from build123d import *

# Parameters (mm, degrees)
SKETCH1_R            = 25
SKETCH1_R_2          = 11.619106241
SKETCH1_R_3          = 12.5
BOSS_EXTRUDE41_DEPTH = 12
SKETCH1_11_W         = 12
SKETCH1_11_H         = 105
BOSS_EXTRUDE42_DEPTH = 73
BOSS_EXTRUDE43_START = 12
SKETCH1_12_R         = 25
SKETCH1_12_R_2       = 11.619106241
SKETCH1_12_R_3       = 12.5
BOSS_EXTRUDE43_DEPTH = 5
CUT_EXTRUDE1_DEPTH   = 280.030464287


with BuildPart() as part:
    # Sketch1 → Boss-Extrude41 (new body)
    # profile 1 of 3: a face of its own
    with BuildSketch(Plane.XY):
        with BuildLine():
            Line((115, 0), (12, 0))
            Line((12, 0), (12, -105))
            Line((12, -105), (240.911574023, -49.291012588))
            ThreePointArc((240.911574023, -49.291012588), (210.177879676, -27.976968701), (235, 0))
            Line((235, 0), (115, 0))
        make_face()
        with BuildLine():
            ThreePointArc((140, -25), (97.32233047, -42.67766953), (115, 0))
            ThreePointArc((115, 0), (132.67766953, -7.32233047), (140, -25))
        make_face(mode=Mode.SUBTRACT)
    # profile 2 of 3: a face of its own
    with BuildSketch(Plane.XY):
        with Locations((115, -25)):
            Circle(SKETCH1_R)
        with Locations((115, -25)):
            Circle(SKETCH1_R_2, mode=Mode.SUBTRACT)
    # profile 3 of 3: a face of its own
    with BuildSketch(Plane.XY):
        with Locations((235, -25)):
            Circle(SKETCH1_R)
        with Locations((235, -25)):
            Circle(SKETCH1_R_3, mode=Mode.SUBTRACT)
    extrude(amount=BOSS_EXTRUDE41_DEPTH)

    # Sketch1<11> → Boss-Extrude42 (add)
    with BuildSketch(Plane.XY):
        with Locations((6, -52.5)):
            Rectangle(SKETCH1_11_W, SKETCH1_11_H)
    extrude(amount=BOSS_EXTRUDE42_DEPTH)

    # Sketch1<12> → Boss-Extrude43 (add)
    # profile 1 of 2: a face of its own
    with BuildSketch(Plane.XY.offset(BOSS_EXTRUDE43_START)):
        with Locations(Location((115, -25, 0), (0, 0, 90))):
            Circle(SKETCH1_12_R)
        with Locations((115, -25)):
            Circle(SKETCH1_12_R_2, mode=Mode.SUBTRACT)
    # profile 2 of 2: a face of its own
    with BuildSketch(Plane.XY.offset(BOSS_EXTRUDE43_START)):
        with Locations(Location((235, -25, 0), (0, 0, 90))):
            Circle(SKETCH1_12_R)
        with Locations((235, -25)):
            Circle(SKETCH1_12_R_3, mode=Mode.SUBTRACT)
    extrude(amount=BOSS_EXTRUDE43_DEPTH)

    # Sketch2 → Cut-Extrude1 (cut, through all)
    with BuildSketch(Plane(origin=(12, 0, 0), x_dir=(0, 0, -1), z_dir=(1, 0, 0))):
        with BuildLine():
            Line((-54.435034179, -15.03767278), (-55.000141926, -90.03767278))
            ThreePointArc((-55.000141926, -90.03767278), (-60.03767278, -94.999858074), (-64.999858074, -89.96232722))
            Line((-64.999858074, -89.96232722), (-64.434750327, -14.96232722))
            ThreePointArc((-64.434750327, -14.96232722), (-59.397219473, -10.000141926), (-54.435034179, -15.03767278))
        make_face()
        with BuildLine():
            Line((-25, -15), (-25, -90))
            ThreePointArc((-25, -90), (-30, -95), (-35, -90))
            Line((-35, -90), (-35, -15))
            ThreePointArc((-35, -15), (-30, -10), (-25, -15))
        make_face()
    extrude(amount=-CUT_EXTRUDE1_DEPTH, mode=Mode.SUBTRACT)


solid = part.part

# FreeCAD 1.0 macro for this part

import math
import FreeCAD as App
import Part
import Sketcher
from FreeCAD import Vector
Q = App.Units.Quantity


def add_polygon(sketch, points):
    """Adds a closed chain of lines whose ends are joined by coincident constraints."""
    first, n = sketch.GeometryCount, len(points)
    for a, b in zip(points, points[1:] + points[:1]):
        sketch.addGeometry(Part.LineSegment(App.Vector(*a, 0), App.Vector(*b, 0)), False)
    for i in range(n):
        sketch.addConstraint(Sketcher.Constraint("Coincident", first + i, 2, first + (i + 1) % n, 1))

doc = App.newDocument("Part")
body = doc.addObject("PartDesign::Body", "Body")

sketch1 = body.newObject("Sketcher::SketchObject", "Sketch")
sketch1.AttachmentSupport = (doc.getObject("XY_Plane"), [""])
sketch1.MapMode = "FlatFace"
sketch1.addGeometry(Part.LineSegment(Vector(235, 0, 0), Vector(12, 0, 0)), False)
sketch1.addGeometry(Part.LineSegment(Vector(12, 0, 0), Vector(12, -105, 0)), False)
sketch1.addGeometry(Part.LineSegment(Vector(12, -105, 0), Vector(241, -49, 0)), False)
sketch1.addGeometry(Part.ArcOfCircle(Part.Circle(Vector(235, -25, 0), Vector(0, 0, 1), 25), math.radians(-76), math.radians(90)), False)
sketch1.addGeometry(Part.Circle(Vector(235, -25, 0), Vector(0, 0, 1), 12), False)
sketch1.addGeometry(Part.Circle(Vector(115, -25, 0), Vector(0, 0, 1), 12), False)
sketch1.addConstraint(Sketcher.Constraint("Coincident", 0, 2, 1, 1))
sketch1.addConstraint(Sketcher.Constraint("Coincident", 1, 2, 2, 1))
sketch1.addConstraint(Sketcher.Constraint("Tangent", 2, 2, 3, 1))
sketch1.addConstraint(Sketcher.Constraint("Tangent", 3, 2, 0, 1))
sketch1.addConstraint(Sketcher.Constraint("Horizontal", 0))
sketch1.addConstraint(Sketcher.Constraint("Vertical", 1))
sketch1.addConstraint(Sketcher.Constraint("Coincident", 4, 3, 3, 3))
sketch1.addConstraint(Sketcher.Constraint("PointOnObject", 0, 2, -1))
sketch1.addConstraint(Sketcher.Constraint("Horizontal", 4, 3, 5, 3))
sketch1.addConstraint(Sketcher.Constraint("Diameter", 4, Q("25 mm")))
sketch1.addConstraint(Sketcher.Constraint("Radius", 3, Q("25 mm")))
sketch1.addConstraint(Sketcher.Constraint("DistanceX", 0, 2, 0, 1, Q("223 mm")))
sketch1.addConstraint(Sketcher.Constraint("DistanceY", 1, 2, 1, 1, Q("105 mm")))
sketch1.addConstraint(Sketcher.Constraint("DistanceX", -1, 1, 3, 3, Q("235 mm")))
sketch1.addConstraint(Sketcher.Constraint("DistanceX", -1, 1, 5, 3, Q("115 mm")))
sketch1.addConstraint(Sketcher.Constraint("Diameter", 5, Q("23.238212 mm")))
pad1 = body.newObject("PartDesign::Pad", "Pad")
pad1.Profile = sketch1
pad1.Length = 12

sketch2 = body.newObject("Sketcher::SketchObject", "Sketch001")
sketch2.AttachmentSupport = (doc.getObject("XY_Plane"), [""])
sketch2.MapMode = "FlatFace"
add_polygon(sketch2, [(0, 0), (0, -105), (12, -105), (12, 0)])
sketch2.addConstraint(Sketcher.Constraint("Vertical", 0))
sketch2.addConstraint(Sketcher.Constraint("Horizontal", 1))
sketch2.addConstraint(Sketcher.Constraint("Vertical", 2))
sketch2.addConstraint(Sketcher.Constraint("Horizontal", 3))
sketch2.addConstraint(Sketcher.Constraint("Coincident", 3, 2, -1, 1))
sketch2.addConstraint(Sketcher.Constraint("DistanceX", 1, 1, 1, 2, Q("12 mm")))
sketch2.addConstraint(Sketcher.Constraint("DistanceY", 0, 2, 0, 1, Q("105 mm")))
pad2 = body.newObject("PartDesign::Pad", "Pad001")
pad2.Profile = sketch2
pad2.Length = 73

sketch3 = body.newObject("Sketcher::SketchObject", "Sketch002")
sketch3.AttachmentSupport = (doc.getObject("XY_Plane"), [""])
sketch3.MapMode = "FlatFace"
sketch3.AttachmentOffset = App.Placement(Vector(0, 0, 12), App.Rotation())
sketch3.addGeometry(Part.Circle(Vector(115, -25, 0), Vector(0, 0, 1), 25), False)
sketch3.addGeometry(Part.Circle(Vector(115, -25, 0), Vector(0, 0, 1), 12), False)
sketch3.addGeometry(Part.Circle(Vector(235, -25, 0), Vector(0, 0, 1), 25), False)
sketch3.addGeometry(Part.Circle(Vector(235, -25, 0), Vector(0, 0, 1), 12), False)
sketch3.addConstraint(Sketcher.Constraint("Coincident", 1, 3, 0, 3))
sketch3.addConstraint(Sketcher.Constraint("Coincident", 3, 3, 2, 3))
sketch3.addConstraint(Sketcher.Constraint("Equal", 0, 2))
sketch3.addConstraint(Sketcher.Constraint("Horizontal", 1, 3, 2, 3))
sketch3.addConstraint(Sketcher.Constraint("Diameter", 0, Q("50 mm")))
sketch3.addConstraint(Sketcher.Constraint("Diameter", 3, Q("25 mm")))
sketch3.addConstraint(Sketcher.Constraint("DistanceX", -1, 1, 0, 3, Q("115 mm")))
sketch3.addConstraint(Sketcher.Constraint("DistanceY", 0, 3, -1, 1, Q("25 mm")))
sketch3.addConstraint(Sketcher.Constraint("DistanceX", -1, 1, 2, 3, Q("235 mm")))
sketch3.addConstraint(Sketcher.Constraint("Diameter", 1, Q("23.238212 mm")))
pad3 = body.newObject("PartDesign::Pad", "Pad002")
pad3.Profile = sketch3
pad3.Length = 5

sketch4 = body.newObject("Sketcher::SketchObject", "Sketch003")
sketch4.AttachmentSupport = (doc.getObject("YZ_Plane"), [""])
sketch4.MapMode = "FlatFace"
sketch4.AttachmentOffset = App.Placement(Vector(0, 0, 12), App.Rotation())
sketch4.addGeometry(Part.LineSegment(Vector(-90, 55, 0), Vector(-15, 54, 0)), False)
sketch4.addGeometry(Part.ArcOfCircle(Part.Circle(Vector(-15, 59, 0), Vector(0, 0, 1), 5), math.radians(-90), math.radians(90)), False)
sketch4.addGeometry(Part.LineSegment(Vector(-15, 64, 0), Vector(-90, 65, 0)), False)
sketch4.addGeometry(Part.ArcOfCircle(Part.Circle(Vector(-90, 60, 0), Vector(0, 0, 1), 5), math.radians(90), math.radians(270)), False)
sketch4.addGeometry(Part.LineSegment(Vector(-90, 25, 0), Vector(-15, 25, 0)), False)
sketch4.addGeometry(Part.ArcOfCircle(Part.Circle(Vector(-15, 30, 0), Vector(0, 0, 1), 5), math.radians(-90), math.radians(90)), False)
sketch4.addGeometry(Part.LineSegment(Vector(-15, 35, 0), Vector(-90, 35, 0)), False)
sketch4.addGeometry(Part.ArcOfCircle(Part.Circle(Vector(-90, 30, 0), Vector(0, 0, 1), 5), math.radians(90), math.radians(270)), False)
sketch4.addConstraint(Sketcher.Constraint("Tangent", 0, 2, 1, 1))
sketch4.addConstraint(Sketcher.Constraint("Tangent", 1, 2, 2, 1))
sketch4.addConstraint(Sketcher.Constraint("Tangent", 2, 2, 3, 1))
sketch4.addConstraint(Sketcher.Constraint("Tangent", 3, 2, 0, 1))
sketch4.addConstraint(Sketcher.Constraint("Tangent", 4, 2, 5, 1))
sketch4.addConstraint(Sketcher.Constraint("Tangent", 5, 2, 6, 1))
sketch4.addConstraint(Sketcher.Constraint("Tangent", 6, 2, 7, 1))
sketch4.addConstraint(Sketcher.Constraint("Tangent", 7, 2, 4, 1))
sketch4.addConstraint(Sketcher.Constraint("Horizontal", 4))
sketch4.addConstraint(Sketcher.Constraint("Horizontal", 6))
sketch4.addConstraint(Sketcher.Constraint("Equal", 1, 3))
sketch4.addConstraint(Sketcher.Constraint("Equal", 3, 5))
sketch4.addConstraint(Sketcher.Constraint("Vertical", 1, 3, 5, 3))
sketch4.addConstraint(Sketcher.Constraint("Vertical", 3, 3, 7, 3))
sketch4.addConstraint(Sketcher.Constraint("Radius", 1, Q("5 mm")))
sketch4.addConstraint(Sketcher.Constraint("DistanceX", 4, 1, 4, 2, Q("75 mm")))
sketch4.addConstraint(Sketcher.Constraint("DistanceX", 1, 3, -1, 1, Q("15 mm")))
sketch4.addConstraint(Sketcher.Constraint("DistanceY", -1, 1, 3, 3, Q("60 mm")))
sketch4.addConstraint(Sketcher.Constraint("DistanceY", -1, 1, 5, 3, Q("30 mm")))
sketch4.addConstraint(Sketcher.Constraint("Distance", 0, Q("75.002129 mm")))
pocket1 = body.newObject("PartDesign::Pocket", "Pocket")
pocket1.Profile = sketch4
pocket1.Type = "ThroughAll"

doc.recompute()
